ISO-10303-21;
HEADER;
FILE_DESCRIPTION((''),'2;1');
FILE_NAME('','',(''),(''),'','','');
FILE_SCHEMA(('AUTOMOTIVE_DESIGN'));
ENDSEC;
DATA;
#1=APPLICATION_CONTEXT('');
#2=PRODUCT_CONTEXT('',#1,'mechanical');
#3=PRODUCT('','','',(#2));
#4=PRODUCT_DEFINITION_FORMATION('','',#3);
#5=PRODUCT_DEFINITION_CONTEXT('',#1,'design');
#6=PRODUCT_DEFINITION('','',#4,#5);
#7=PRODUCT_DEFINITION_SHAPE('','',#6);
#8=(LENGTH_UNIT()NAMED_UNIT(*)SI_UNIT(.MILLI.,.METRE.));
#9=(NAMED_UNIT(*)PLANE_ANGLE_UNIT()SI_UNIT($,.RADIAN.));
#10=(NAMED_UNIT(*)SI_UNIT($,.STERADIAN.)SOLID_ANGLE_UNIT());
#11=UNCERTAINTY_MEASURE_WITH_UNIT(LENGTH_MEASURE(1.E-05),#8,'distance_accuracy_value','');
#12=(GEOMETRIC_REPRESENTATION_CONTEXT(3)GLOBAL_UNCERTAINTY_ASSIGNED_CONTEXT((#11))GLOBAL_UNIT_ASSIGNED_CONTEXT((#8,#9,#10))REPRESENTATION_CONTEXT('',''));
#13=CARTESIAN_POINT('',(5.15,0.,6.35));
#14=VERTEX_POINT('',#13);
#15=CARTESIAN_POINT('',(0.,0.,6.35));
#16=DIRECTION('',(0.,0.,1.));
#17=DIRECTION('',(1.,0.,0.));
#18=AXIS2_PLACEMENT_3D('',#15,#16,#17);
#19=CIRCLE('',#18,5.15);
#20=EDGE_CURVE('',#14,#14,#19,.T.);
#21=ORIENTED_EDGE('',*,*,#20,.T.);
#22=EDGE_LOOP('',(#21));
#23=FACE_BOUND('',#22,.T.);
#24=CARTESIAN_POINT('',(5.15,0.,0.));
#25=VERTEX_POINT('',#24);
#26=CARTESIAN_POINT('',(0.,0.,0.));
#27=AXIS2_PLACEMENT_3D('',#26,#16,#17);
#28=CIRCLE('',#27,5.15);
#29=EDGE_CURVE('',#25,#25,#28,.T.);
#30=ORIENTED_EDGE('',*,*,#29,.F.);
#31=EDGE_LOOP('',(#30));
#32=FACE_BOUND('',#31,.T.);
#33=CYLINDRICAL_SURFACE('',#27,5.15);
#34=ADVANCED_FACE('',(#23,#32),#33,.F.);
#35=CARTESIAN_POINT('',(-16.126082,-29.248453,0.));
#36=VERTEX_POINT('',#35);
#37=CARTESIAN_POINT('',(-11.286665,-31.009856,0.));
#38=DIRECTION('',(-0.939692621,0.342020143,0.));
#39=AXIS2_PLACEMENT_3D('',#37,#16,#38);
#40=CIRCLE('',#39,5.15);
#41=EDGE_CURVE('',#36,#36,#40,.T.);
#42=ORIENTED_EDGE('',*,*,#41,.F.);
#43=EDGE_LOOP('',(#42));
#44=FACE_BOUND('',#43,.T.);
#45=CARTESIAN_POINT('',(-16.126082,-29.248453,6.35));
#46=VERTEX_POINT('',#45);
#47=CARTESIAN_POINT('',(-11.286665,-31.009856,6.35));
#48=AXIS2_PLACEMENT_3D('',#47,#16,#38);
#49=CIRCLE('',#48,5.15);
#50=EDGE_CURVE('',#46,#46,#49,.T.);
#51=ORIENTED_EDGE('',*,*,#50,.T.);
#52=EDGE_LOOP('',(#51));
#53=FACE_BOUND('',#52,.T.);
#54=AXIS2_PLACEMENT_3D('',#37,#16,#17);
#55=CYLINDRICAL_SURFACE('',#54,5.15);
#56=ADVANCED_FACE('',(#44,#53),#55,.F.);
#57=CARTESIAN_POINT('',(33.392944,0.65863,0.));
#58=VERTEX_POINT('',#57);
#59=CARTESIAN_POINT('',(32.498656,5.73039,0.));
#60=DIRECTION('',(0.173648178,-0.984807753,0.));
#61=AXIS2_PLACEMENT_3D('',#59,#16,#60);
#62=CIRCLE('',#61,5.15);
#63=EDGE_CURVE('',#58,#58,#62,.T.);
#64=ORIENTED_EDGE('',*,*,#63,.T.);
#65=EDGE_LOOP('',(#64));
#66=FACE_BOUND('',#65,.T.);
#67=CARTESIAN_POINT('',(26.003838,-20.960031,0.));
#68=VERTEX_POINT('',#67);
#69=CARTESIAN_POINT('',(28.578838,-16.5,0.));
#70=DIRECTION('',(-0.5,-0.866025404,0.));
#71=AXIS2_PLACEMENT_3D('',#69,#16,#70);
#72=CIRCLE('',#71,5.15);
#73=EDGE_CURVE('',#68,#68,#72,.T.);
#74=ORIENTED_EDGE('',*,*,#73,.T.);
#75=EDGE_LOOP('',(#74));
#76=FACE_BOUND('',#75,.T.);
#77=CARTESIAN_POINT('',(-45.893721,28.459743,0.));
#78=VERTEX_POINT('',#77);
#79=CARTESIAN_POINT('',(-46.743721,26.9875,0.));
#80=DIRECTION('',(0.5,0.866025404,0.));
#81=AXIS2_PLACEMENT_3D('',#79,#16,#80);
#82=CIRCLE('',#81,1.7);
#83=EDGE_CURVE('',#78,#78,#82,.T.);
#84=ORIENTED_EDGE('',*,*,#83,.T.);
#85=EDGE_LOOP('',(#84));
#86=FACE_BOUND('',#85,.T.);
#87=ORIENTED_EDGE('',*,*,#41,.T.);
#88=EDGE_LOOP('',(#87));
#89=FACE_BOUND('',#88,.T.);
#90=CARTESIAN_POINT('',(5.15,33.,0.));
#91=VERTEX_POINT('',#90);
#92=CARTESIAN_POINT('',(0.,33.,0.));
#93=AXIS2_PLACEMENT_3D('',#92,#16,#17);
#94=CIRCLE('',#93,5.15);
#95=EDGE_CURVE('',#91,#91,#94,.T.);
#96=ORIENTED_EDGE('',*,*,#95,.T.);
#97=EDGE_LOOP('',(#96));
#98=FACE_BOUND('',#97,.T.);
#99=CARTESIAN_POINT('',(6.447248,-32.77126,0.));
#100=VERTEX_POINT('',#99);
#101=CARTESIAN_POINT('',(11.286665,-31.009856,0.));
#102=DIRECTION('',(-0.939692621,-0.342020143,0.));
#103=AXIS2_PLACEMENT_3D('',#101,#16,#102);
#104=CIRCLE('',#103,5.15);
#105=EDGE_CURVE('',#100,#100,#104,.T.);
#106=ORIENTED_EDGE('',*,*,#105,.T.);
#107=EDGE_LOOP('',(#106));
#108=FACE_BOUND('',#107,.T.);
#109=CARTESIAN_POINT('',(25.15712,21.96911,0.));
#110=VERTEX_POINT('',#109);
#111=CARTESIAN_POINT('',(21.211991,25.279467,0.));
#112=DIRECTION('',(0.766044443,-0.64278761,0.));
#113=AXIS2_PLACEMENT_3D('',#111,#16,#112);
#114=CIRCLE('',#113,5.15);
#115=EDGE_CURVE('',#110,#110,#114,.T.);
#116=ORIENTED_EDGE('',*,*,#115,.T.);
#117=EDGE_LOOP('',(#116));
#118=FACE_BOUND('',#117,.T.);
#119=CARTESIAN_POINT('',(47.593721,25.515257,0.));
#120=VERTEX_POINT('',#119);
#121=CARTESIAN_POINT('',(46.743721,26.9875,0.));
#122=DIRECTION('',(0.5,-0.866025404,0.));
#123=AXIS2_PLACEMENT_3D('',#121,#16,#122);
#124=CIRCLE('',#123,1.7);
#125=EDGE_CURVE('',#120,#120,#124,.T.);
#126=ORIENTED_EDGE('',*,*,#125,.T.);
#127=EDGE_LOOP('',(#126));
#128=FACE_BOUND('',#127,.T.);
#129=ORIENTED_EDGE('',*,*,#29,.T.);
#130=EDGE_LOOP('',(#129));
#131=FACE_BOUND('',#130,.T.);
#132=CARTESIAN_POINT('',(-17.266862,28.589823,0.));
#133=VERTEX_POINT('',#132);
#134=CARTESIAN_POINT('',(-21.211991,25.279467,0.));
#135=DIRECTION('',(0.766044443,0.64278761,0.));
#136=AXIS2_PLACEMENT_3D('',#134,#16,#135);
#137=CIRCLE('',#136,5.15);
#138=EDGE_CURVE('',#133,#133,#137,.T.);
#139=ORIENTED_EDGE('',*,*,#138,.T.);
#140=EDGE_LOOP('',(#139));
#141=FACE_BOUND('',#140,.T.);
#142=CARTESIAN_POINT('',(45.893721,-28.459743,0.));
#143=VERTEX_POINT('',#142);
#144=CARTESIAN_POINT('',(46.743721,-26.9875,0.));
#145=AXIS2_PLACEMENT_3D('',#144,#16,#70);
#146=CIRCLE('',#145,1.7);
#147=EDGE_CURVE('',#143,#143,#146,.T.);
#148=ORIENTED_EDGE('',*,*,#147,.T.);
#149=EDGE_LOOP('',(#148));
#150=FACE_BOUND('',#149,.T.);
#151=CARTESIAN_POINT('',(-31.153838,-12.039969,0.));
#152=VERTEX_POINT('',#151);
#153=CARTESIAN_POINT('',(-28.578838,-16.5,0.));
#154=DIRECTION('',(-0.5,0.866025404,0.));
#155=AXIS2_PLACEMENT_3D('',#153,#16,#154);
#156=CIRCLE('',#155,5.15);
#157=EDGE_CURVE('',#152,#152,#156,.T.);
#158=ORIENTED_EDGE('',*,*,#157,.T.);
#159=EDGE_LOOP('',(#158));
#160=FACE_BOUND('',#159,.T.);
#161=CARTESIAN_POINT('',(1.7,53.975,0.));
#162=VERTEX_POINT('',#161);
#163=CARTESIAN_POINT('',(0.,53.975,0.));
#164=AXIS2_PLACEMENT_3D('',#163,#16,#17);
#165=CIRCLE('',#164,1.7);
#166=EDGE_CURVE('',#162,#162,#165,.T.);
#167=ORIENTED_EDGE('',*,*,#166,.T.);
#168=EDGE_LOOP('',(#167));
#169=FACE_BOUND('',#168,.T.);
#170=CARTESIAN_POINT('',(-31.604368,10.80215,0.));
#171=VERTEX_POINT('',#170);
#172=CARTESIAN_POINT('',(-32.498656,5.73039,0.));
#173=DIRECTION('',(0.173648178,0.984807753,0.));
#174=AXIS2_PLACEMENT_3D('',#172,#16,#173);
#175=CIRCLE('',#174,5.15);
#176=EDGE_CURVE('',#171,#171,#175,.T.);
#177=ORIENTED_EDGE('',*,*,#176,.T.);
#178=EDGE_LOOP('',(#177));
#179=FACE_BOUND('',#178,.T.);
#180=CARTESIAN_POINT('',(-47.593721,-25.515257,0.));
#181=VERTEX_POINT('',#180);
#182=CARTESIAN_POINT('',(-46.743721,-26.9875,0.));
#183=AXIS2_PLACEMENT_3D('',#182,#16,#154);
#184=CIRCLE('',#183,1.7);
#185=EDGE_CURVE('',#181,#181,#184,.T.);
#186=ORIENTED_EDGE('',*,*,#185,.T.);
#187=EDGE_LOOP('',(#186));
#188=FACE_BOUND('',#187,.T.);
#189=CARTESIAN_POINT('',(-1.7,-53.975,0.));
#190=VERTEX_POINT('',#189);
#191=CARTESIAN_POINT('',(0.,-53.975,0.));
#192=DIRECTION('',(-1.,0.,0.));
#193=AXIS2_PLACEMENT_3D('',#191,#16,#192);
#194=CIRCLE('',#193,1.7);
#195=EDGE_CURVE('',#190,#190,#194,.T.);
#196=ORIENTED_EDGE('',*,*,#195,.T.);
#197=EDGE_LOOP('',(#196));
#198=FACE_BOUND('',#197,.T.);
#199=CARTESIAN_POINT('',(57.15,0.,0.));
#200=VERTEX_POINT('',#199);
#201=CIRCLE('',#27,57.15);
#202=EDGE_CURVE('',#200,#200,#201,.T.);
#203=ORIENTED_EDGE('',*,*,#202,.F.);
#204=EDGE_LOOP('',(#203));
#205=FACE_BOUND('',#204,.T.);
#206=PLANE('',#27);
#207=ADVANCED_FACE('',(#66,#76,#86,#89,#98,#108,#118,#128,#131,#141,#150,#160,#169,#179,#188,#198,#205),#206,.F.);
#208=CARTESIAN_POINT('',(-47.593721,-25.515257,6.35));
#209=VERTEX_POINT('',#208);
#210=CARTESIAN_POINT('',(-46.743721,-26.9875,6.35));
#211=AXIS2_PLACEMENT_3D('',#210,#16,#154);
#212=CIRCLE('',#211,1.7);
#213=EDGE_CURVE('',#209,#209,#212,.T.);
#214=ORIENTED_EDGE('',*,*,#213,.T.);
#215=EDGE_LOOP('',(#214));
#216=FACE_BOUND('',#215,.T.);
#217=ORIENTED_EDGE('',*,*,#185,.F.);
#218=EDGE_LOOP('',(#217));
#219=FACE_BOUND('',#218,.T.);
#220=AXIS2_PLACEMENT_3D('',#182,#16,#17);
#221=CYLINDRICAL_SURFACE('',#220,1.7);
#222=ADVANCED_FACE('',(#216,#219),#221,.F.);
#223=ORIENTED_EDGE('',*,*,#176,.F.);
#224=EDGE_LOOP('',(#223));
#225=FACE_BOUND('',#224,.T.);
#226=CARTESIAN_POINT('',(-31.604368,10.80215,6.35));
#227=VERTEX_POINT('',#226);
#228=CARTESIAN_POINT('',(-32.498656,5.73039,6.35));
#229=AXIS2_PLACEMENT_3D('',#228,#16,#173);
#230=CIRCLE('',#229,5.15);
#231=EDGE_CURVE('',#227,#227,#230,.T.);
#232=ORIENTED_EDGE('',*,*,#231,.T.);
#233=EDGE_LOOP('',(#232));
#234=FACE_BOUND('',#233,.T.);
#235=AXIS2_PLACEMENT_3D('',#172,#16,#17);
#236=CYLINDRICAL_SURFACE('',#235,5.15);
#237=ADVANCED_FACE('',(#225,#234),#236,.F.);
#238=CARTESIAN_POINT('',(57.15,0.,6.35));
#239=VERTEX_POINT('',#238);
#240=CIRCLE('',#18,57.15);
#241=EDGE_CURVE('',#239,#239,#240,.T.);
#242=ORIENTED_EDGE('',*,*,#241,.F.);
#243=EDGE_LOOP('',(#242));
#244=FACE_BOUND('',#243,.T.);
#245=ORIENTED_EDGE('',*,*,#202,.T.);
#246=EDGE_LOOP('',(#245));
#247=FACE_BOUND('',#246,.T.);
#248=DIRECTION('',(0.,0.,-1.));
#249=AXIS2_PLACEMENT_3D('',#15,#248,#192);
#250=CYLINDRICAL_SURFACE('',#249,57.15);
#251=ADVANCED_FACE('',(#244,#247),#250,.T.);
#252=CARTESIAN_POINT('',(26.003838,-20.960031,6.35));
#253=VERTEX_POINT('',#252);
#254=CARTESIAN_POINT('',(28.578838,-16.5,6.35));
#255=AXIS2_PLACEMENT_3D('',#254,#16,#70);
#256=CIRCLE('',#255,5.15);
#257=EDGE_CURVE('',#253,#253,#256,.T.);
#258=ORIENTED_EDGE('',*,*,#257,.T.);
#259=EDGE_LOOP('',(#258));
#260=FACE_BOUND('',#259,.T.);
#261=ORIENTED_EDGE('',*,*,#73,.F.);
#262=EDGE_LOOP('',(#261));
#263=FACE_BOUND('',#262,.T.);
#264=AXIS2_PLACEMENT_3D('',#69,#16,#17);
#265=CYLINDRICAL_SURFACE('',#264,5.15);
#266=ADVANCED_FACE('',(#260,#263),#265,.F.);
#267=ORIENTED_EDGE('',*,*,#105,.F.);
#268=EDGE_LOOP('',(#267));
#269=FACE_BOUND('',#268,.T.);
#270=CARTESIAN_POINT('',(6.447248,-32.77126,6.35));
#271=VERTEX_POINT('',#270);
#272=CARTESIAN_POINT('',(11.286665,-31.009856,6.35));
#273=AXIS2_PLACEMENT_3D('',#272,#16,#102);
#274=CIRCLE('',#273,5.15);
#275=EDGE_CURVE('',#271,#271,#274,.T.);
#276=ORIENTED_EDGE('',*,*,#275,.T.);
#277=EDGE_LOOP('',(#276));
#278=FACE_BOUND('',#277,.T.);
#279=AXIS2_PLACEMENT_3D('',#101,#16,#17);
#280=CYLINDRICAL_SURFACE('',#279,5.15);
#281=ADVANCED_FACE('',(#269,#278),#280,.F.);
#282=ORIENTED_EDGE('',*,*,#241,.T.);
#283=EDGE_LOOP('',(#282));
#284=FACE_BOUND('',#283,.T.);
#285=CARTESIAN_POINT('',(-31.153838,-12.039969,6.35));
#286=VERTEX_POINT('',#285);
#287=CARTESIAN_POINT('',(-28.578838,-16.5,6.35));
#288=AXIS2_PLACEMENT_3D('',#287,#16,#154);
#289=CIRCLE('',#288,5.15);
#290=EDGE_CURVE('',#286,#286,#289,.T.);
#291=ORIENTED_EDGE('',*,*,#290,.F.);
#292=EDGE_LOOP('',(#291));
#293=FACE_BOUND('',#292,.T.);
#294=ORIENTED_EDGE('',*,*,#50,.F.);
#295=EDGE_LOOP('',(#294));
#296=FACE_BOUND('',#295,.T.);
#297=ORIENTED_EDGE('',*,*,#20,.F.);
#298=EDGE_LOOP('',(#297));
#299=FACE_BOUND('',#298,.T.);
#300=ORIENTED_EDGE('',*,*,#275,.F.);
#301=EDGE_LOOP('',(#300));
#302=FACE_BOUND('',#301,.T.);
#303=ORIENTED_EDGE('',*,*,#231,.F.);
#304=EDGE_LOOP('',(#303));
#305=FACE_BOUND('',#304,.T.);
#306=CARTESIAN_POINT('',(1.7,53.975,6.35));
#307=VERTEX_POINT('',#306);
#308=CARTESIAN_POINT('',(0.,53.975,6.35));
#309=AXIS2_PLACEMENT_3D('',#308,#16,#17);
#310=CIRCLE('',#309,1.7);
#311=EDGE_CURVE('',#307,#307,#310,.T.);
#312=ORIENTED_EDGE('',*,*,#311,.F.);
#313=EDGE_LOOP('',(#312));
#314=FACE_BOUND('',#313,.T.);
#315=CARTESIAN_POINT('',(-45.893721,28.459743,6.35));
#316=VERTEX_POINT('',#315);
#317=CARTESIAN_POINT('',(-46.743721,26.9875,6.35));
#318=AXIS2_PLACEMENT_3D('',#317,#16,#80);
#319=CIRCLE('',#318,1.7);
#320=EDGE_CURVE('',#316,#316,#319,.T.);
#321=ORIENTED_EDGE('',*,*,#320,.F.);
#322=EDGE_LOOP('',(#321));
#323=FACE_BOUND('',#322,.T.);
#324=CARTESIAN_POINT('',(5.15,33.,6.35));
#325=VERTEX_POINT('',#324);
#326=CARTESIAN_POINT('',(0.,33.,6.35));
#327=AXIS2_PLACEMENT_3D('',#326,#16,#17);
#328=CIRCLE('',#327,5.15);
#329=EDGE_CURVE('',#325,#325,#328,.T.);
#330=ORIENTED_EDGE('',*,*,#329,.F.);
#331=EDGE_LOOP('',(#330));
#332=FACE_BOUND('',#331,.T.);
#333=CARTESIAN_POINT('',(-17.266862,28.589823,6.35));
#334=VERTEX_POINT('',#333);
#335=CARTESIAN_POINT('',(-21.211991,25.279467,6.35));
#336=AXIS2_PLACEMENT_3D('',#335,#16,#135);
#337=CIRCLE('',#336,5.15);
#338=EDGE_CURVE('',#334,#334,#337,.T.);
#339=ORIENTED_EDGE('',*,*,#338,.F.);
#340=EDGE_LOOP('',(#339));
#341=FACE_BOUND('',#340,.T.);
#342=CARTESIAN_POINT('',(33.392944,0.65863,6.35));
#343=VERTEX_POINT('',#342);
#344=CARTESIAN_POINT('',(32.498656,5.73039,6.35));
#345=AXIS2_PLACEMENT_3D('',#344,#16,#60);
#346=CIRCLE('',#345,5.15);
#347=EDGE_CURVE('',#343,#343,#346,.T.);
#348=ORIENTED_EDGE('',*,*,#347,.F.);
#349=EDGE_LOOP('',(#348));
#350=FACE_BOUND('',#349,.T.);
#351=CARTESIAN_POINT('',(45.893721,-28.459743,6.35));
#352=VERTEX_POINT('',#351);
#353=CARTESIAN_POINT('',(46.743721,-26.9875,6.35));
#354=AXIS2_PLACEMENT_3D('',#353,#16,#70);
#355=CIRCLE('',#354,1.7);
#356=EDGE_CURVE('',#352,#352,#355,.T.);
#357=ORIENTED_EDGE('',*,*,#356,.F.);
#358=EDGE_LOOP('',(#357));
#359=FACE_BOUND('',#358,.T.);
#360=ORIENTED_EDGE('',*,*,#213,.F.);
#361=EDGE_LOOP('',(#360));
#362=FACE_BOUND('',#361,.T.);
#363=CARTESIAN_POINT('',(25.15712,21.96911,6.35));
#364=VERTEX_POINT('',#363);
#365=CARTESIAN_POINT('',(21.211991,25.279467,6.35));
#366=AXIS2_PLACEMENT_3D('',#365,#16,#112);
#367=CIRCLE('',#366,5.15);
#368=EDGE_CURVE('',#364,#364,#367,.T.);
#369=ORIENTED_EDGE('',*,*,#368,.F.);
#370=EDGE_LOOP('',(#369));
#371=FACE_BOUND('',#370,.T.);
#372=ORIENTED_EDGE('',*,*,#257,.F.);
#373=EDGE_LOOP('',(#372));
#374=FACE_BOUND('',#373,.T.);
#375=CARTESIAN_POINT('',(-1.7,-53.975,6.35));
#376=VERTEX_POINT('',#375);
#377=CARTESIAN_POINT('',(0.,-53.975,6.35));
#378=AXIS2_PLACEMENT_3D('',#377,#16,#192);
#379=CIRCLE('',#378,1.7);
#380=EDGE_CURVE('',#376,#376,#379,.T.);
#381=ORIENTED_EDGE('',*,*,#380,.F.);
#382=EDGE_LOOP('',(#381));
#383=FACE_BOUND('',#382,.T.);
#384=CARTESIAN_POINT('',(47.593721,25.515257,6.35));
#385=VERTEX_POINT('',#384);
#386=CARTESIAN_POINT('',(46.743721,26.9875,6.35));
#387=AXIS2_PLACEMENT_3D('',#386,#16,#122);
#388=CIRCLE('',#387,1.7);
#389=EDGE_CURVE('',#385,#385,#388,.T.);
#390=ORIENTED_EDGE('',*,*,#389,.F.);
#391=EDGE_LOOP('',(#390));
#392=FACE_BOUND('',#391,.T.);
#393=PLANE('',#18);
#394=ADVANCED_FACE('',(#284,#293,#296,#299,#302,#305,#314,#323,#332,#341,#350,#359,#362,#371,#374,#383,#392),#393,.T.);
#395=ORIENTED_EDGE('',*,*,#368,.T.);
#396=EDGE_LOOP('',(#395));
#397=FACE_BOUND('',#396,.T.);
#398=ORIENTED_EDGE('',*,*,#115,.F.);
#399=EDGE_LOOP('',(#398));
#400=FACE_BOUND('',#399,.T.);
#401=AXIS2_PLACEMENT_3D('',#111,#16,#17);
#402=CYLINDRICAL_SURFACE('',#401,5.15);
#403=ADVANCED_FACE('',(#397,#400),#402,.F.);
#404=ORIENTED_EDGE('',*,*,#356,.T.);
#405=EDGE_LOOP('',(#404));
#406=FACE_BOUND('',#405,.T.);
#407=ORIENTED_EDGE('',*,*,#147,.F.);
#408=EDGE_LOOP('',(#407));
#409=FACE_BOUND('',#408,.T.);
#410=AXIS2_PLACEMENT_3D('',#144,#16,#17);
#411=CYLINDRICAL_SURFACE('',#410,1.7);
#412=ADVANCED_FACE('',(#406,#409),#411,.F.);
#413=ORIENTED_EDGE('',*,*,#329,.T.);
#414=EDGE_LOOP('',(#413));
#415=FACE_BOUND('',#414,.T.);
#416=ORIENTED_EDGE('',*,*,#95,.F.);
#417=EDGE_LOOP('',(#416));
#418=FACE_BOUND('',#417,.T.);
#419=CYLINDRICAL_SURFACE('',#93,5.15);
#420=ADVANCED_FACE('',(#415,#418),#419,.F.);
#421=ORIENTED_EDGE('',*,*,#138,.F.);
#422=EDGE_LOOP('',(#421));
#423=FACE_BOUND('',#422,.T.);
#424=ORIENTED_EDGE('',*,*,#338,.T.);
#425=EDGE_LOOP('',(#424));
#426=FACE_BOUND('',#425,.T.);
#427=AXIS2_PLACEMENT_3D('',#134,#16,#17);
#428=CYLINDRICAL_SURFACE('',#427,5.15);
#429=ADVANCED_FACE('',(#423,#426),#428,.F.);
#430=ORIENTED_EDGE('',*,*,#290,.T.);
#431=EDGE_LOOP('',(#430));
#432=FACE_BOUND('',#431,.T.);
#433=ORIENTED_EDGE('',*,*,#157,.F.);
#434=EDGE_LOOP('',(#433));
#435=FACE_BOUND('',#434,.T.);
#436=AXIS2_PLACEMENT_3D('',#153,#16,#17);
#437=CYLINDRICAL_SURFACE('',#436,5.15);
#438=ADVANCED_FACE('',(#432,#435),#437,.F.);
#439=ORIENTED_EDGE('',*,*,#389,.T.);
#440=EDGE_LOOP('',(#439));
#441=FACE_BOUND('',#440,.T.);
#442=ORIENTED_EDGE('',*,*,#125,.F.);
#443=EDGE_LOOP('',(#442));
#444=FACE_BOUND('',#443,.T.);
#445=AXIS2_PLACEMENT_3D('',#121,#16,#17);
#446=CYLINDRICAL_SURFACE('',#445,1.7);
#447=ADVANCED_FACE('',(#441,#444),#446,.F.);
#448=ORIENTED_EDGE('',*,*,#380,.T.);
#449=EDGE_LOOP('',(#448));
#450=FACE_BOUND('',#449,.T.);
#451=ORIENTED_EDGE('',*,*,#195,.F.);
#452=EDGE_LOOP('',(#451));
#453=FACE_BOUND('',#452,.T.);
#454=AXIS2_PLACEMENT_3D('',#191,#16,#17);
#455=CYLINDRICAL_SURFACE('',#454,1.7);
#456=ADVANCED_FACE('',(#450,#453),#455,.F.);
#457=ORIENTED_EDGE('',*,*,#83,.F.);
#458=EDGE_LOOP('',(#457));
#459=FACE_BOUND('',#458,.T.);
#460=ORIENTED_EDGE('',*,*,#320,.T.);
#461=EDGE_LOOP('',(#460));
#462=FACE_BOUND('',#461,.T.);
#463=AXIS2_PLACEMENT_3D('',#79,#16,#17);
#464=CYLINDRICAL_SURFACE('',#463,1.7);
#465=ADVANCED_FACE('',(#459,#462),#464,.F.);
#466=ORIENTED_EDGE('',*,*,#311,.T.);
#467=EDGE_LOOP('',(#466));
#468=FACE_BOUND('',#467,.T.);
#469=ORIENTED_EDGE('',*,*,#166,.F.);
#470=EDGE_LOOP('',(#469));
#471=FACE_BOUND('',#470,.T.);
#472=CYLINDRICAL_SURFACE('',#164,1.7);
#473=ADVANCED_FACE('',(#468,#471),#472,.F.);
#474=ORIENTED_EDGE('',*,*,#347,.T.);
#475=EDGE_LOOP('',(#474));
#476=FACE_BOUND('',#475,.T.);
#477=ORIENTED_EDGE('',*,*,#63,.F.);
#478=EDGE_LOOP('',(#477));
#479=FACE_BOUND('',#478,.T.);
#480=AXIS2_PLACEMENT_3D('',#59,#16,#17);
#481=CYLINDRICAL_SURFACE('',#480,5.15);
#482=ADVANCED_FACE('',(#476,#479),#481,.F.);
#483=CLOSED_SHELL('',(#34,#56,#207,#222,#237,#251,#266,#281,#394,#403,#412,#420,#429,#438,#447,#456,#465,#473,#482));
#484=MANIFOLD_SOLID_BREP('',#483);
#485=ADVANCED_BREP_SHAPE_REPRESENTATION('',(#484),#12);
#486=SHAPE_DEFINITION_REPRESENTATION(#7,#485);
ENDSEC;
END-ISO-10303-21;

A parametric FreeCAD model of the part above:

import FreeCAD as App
import Part
import Sketcher
Q = App.Units.Quantity

doc = App.newDocument("Part")
body = doc.addObject("PartDesign::Body", "Body")

# Sketch on XY plane
sketch1 = body.newObject("Sketcher::SketchObject", "Sketch")
sketch1.AttachmentSupport = (doc.getObject("XY_Plane"), [""])
sketch1.MapMode = "FlatFace"
sketch1.addGeometry(Part.Circle(App.Vector(0, 0, 0), App.Vector(0, 0, 1), 57.15), False)
sketch1.addConstraint(Sketcher.Constraint("Coincident", 0, 3, -1, 1))
sketch1.addConstraint(Sketcher.Constraint("Diameter", 0, Q("114.3 mm")))
pad1 = body.newObject("PartDesign::Pad", "Pad")
pad1.Profile = sketch1
pad1.Length = 6.35

# Sketch on XY plane
sketch2 = body.newObject("Sketcher::SketchObject", "Sketch001")
sketch2.AttachmentSupport = (doc.getObject("XY_Plane"), [""])
sketch2.MapMode = "FlatFace"
sketch2.AttachmentOffset = App.Placement(App.Vector(0, 0, 6.35), App.Rotation())
sketch2.addGeometry(Part.Circle(App.Vector(0, 33, 0), App.Vector(0, 0, 1), 5.15), False)
sketch2.addConstraint(Sketcher.Constraint("PointOnObject", 0, 3, -2))
sketch2.addConstraint(Sketcher.Constraint("Diameter", 0, Q("10.3 mm")))
sketch2.addConstraint(Sketcher.Constraint("DistanceY", -1, 1, 0, 3, Q("33 mm")))
pocket1 = body.newObject("PartDesign::Pocket", "Pocket")
pocket1.Profile = sketch2
pocket1.Type = "ThroughAll"
doc.recompute()

polarpattern = body.newObject("PartDesign::PolarPattern", "PolarPattern")
polarpattern.Originals = [pocket1]
polarpattern.Axis = (doc.getObject("Z_Axis"), [""])
polarpattern.Angle = 360
polarpattern.Occurrences = 9
body.Tip = polarpattern

# Sketch on XY plane
sketch3 = body.newObject("Sketcher::SketchObject", "Sketch002")
sketch3.AttachmentSupport = (doc.getObject("XY_Plane"), [""])
sketch3.MapMode = "FlatFace"
sketch3.AttachmentOffset = App.Placement(App.Vector(0, 0, 6.35), App.Rotation())
sketch3.addGeometry(Part.Circle(App.Vector(0, 53.975, 0), App.Vector(0, 0, 1), 1.7), False)
sketch3.addConstraint(Sketcher.Constraint("PointOnObject", 0, 3, -2))
sketch3.addConstraint(Sketcher.Constraint("Diameter", 0, Q("3.4 mm")))
sketch3.addConstraint(Sketcher.Constraint("DistanceY", -1, 1, 0, 3, Q("53.975 mm")))
pocket2 = body.newObject("PartDesign::Pocket", "Pocket001")
pocket2.Profile = sketch3
pocket2.Type = "ThroughAll"
doc.recompute()

polarpattern2 = body.newObject("PartDesign::PolarPattern", "PolarPattern001")
polarpattern2.Originals = [pocket2]
polarpattern2.Axis = (doc.getObject("Z_Axis"), [""])
polarpattern2.Angle = 360
polarpattern2.Occurrences = 6
body.Tip = polarpattern2

# Sketch on XY plane
sketch4 = body.newObject("Sketcher::SketchObject", "Sketch003")
sketch4.AttachmentSupport = (doc.getObject("XY_Plane"), [""])
sketch4.MapMode = "FlatFace"
sketch4.AttachmentOffset = App.Placement(App.Vector(0, 0, 6.35), App.Rotation())
sketch4.addGeometry(Part.Circle(App.Vector(0, 0, 0), App.Vector(0, 0, 1), 5.15), False)
sketch4.addConstraint(Sketcher.Constraint("Coincident", 0, 3, -1, 1))
sketch4.addConstraint(Sketcher.Constraint("Diameter", 0, Q("10.3 mm")))
pocket3 = body.newObject("PartDesign::Pocket", "Pocket002")
pocket3.Profile = sketch4
pocket3.Type = "ThroughAll"

doc.recompute()
